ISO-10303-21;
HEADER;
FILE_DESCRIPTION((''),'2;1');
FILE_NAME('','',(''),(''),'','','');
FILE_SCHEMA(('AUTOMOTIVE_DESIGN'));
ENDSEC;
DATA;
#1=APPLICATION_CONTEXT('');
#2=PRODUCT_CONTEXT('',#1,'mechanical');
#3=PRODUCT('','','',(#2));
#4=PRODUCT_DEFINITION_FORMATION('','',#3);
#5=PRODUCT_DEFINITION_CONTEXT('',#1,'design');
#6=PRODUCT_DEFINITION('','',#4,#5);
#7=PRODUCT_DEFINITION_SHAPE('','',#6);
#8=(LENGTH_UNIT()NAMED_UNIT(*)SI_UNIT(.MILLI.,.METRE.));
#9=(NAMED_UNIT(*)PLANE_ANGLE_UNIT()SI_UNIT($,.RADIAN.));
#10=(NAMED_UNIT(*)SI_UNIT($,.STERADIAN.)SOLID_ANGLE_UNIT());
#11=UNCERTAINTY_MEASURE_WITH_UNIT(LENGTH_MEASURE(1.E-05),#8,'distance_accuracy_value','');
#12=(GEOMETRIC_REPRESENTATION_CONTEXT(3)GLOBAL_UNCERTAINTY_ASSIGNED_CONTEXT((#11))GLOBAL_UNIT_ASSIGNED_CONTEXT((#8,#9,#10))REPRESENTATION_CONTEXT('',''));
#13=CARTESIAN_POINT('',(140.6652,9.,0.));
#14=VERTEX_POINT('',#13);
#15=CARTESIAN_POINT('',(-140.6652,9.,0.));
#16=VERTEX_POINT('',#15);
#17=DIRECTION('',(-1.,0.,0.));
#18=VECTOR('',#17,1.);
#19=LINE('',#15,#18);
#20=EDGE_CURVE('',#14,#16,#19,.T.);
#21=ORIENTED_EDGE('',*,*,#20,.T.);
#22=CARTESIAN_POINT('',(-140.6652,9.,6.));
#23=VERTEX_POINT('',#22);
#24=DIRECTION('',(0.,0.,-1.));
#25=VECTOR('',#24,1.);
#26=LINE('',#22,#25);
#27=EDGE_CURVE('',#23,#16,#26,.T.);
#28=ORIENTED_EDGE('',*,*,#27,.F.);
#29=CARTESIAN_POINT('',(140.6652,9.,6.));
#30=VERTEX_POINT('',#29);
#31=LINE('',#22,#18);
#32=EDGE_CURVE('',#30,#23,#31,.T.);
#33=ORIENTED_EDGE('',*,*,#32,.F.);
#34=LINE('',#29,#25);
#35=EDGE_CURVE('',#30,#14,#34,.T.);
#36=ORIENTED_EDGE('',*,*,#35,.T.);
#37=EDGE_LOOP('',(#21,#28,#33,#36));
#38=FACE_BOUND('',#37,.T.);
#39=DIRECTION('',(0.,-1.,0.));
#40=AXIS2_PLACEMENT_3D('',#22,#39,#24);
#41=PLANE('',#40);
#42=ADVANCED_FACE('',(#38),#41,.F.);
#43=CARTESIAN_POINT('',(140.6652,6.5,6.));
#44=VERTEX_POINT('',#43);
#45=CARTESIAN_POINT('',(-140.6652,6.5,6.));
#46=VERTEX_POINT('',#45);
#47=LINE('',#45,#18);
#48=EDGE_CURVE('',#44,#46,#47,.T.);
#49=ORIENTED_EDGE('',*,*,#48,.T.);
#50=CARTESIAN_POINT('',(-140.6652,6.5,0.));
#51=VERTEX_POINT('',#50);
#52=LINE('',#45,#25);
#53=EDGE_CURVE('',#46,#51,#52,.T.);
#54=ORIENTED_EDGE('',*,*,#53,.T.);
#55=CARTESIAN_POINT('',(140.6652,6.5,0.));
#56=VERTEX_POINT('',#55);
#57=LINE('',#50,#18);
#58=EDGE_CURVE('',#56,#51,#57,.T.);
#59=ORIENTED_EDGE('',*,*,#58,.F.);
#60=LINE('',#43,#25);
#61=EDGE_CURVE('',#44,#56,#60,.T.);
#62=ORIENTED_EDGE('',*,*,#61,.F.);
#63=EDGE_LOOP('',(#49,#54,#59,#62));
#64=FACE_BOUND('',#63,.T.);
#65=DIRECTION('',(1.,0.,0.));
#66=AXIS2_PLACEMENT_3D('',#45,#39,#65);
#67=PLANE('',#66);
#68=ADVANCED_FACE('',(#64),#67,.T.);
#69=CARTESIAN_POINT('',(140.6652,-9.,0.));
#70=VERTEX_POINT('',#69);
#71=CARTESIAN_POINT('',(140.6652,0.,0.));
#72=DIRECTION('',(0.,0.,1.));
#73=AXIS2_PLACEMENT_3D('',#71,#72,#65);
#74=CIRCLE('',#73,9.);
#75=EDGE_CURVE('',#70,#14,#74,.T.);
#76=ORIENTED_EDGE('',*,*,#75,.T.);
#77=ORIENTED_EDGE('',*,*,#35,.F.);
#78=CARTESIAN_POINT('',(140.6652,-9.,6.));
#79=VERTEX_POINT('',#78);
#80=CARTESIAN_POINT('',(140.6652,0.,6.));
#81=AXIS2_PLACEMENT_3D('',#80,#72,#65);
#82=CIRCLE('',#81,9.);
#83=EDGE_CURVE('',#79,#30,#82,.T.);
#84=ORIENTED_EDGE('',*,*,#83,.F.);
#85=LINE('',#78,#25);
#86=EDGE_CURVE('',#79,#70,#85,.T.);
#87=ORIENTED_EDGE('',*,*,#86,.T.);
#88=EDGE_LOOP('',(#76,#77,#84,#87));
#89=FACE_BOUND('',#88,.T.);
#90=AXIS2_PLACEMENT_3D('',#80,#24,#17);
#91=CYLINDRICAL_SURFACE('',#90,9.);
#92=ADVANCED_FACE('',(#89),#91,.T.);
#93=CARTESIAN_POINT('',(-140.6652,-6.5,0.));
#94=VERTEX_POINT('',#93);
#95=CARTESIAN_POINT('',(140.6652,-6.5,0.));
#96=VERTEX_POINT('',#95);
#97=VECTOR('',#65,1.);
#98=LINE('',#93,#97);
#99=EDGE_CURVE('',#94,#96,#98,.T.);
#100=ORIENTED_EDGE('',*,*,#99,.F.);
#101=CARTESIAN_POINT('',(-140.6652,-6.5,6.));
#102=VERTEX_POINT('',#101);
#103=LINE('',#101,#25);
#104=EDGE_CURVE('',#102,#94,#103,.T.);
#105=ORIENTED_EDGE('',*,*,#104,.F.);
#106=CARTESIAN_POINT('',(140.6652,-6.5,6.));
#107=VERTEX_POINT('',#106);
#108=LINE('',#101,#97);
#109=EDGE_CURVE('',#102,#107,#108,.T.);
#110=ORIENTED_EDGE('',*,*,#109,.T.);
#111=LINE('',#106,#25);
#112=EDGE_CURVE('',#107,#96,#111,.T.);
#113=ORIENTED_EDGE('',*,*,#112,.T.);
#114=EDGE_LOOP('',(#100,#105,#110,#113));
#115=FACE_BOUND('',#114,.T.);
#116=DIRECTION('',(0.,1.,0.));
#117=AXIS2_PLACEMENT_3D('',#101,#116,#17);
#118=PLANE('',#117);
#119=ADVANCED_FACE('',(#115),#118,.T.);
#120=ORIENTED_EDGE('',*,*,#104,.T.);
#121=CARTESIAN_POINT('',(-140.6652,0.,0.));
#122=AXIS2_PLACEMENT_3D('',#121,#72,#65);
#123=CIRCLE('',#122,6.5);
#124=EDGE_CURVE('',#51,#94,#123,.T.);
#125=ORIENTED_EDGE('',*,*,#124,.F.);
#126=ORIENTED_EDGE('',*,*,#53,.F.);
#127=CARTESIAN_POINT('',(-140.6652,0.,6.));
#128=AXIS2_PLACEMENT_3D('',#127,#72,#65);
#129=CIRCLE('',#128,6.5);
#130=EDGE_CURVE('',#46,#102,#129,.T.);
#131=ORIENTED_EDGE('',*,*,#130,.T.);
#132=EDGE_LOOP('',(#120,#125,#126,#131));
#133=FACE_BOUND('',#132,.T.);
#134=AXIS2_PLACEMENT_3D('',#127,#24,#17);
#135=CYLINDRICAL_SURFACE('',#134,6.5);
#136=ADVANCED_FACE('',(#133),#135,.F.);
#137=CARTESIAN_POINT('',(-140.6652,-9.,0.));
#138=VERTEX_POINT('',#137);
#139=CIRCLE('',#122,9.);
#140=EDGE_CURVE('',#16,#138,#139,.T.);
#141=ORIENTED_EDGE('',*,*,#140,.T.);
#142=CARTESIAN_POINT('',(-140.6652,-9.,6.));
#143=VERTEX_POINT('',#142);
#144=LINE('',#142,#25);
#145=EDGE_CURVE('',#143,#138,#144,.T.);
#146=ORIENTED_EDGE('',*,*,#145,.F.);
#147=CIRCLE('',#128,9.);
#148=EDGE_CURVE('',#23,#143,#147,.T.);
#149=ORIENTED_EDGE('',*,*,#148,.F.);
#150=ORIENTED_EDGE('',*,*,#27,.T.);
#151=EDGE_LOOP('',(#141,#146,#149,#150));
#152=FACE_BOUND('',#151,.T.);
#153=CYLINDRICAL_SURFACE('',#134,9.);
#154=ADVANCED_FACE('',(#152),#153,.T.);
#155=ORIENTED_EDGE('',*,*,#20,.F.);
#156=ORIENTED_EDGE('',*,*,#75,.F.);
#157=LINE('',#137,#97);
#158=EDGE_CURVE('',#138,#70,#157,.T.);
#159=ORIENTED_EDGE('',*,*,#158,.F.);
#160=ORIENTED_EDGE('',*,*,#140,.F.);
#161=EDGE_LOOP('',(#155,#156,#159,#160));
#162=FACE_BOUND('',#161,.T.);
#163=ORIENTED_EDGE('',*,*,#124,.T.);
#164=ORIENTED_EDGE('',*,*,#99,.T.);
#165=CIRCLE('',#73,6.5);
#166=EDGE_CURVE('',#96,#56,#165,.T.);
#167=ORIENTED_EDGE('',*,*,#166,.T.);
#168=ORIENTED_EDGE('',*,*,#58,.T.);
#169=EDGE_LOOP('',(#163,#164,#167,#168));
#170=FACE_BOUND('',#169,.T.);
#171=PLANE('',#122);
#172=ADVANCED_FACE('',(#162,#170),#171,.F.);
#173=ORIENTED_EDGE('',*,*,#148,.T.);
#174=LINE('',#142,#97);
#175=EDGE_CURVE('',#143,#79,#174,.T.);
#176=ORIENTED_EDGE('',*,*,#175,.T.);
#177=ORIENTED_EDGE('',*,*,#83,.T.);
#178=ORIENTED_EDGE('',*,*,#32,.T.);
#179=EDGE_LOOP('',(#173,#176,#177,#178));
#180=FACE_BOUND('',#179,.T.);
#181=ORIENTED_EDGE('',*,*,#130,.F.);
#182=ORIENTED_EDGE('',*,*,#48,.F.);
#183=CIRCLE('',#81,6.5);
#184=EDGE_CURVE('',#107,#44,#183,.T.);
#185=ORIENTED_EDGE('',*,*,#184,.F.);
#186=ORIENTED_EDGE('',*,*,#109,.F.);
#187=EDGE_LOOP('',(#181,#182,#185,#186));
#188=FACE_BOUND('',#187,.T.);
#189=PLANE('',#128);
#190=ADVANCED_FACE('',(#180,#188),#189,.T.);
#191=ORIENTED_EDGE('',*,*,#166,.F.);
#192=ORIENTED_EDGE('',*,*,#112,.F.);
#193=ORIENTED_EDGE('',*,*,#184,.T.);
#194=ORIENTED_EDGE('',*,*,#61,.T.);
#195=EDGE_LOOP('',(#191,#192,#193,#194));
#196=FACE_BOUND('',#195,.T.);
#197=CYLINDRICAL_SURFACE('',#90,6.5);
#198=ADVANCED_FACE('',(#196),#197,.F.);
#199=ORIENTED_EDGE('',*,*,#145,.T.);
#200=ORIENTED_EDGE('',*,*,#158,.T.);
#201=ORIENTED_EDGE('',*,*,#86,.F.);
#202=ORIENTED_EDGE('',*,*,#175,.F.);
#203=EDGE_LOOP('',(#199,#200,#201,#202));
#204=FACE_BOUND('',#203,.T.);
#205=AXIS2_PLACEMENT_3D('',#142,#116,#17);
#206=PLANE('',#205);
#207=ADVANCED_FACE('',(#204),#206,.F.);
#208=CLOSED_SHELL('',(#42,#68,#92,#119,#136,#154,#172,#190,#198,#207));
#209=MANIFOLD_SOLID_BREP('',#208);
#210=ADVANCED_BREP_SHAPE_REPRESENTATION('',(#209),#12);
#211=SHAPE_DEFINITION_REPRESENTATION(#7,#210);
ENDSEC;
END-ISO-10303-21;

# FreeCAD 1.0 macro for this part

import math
import FreeCAD as App
import Part
import Sketcher

V = App.Vector

doc = App.newDocument("Part")
body = doc.addObject("PartDesign::Body", "Body")

sketch1 = body.newObject("Sketcher::SketchObject", "Sketch")
sketch1.AttachmentSupport = (doc.getObject("XY_Plane"), [""])
sketch1.MapMode = "FlatFace"
sketch1.addGeometry(Part.LineSegment(V(141, 9, 0), V(-141, 9, 0)), False)
sketch1.addGeometry(Part.ArcOfCircle(Part.Circle(V(-141, 0, 0), V(0, 0, 1), 9), math.radians(90), math.radians(270)), False)
sketch1.addGeometry(Part.LineSegment(V(-141, -9, 0), V(141, -9, 0)), False)
sketch1.addGeometry(Part.ArcOfCircle(Part.Circle(V(141, 0, 0), V(0, 0, 1), 9), math.radians(-90), math.radians(90)), False)
sketch1.addGeometry(Part.LineSegment(V(-141, 6, 0), V(141, 6, 0)), False)
sketch1.addGeometry(Part.ArcOfCircle(Part.Circle(V(141, 0, 0), V(0, 0, 1), 6), math.radians(-90), math.radians(90)), False)
sketch1.addGeometry(Part.LineSegment(V(141, -6, 0), V(-141, -6, 0)), False)
sketch1.addGeometry(Part.ArcOfCircle(Part.Circle(V(-141, 0, 0), V(0, 0, 1), 6), math.radians(90), math.radians(270)), False)
sketch1.addConstraint(Sketcher.Constraint("Tangent", 0, 2, 1, 1))
sketch1.addConstraint(Sketcher.Constraint("Tangent", 1, 2, 2, 1))
sketch1.addConstraint(Sketcher.Constraint("Tangent", 2, 2, 3, 1))
sketch1.addConstraint(Sketcher.Constraint("Tangent", 3, 2, 0, 1))
sketch1.addConstraint(Sketcher.Constraint("Tangent", 4, 2, 5, 2))
sketch1.addConstraint(Sketcher.Constraint("Tangent", 5, 1, 6, 1))
sketch1.addConstraint(Sketcher.Constraint("Tangent", 6, 2, 7, 2))
sketch1.addConstraint(Sketcher.Constraint("Tangent", 7, 1, 4, 1))
sketch1.addConstraint(Sketcher.Constraint("Horizontal", 0))
sketch1.addConstraint(Sketcher.Constraint("Horizontal", 2))
sketch1.addConstraint(Sketcher.Constraint("Horizontal", 4))
sketch1.addConstraint(Sketcher.Constraint("Horizontal", 6))
sketch1.addConstraint(Sketcher.Constraint("Coincident", 5, 3, 3, 3))
sketch1.addConstraint(Sketcher.Constraint("Symmetric", 1, 3, 3, 3, -1, 1))
sketch1.addConstraint(Sketcher.Constraint("Vertical", 7, 3, 0, 2))
sketch1.addConstraint(Sketcher.Constraint("Radius", 1, 9.0))
sketch1.addConstraint(Sketcher.Constraint("Radius", 5, 6.5))
sketch1.addConstraint(Sketcher.Constraint("DistanceX", 0, 2, 0, 1, 281.3304))
pad1 = body.newObject("PartDesign::Pad", "Pad")
pad1.Profile = sketch1
pad1.Length = 6

doc.recompute()
